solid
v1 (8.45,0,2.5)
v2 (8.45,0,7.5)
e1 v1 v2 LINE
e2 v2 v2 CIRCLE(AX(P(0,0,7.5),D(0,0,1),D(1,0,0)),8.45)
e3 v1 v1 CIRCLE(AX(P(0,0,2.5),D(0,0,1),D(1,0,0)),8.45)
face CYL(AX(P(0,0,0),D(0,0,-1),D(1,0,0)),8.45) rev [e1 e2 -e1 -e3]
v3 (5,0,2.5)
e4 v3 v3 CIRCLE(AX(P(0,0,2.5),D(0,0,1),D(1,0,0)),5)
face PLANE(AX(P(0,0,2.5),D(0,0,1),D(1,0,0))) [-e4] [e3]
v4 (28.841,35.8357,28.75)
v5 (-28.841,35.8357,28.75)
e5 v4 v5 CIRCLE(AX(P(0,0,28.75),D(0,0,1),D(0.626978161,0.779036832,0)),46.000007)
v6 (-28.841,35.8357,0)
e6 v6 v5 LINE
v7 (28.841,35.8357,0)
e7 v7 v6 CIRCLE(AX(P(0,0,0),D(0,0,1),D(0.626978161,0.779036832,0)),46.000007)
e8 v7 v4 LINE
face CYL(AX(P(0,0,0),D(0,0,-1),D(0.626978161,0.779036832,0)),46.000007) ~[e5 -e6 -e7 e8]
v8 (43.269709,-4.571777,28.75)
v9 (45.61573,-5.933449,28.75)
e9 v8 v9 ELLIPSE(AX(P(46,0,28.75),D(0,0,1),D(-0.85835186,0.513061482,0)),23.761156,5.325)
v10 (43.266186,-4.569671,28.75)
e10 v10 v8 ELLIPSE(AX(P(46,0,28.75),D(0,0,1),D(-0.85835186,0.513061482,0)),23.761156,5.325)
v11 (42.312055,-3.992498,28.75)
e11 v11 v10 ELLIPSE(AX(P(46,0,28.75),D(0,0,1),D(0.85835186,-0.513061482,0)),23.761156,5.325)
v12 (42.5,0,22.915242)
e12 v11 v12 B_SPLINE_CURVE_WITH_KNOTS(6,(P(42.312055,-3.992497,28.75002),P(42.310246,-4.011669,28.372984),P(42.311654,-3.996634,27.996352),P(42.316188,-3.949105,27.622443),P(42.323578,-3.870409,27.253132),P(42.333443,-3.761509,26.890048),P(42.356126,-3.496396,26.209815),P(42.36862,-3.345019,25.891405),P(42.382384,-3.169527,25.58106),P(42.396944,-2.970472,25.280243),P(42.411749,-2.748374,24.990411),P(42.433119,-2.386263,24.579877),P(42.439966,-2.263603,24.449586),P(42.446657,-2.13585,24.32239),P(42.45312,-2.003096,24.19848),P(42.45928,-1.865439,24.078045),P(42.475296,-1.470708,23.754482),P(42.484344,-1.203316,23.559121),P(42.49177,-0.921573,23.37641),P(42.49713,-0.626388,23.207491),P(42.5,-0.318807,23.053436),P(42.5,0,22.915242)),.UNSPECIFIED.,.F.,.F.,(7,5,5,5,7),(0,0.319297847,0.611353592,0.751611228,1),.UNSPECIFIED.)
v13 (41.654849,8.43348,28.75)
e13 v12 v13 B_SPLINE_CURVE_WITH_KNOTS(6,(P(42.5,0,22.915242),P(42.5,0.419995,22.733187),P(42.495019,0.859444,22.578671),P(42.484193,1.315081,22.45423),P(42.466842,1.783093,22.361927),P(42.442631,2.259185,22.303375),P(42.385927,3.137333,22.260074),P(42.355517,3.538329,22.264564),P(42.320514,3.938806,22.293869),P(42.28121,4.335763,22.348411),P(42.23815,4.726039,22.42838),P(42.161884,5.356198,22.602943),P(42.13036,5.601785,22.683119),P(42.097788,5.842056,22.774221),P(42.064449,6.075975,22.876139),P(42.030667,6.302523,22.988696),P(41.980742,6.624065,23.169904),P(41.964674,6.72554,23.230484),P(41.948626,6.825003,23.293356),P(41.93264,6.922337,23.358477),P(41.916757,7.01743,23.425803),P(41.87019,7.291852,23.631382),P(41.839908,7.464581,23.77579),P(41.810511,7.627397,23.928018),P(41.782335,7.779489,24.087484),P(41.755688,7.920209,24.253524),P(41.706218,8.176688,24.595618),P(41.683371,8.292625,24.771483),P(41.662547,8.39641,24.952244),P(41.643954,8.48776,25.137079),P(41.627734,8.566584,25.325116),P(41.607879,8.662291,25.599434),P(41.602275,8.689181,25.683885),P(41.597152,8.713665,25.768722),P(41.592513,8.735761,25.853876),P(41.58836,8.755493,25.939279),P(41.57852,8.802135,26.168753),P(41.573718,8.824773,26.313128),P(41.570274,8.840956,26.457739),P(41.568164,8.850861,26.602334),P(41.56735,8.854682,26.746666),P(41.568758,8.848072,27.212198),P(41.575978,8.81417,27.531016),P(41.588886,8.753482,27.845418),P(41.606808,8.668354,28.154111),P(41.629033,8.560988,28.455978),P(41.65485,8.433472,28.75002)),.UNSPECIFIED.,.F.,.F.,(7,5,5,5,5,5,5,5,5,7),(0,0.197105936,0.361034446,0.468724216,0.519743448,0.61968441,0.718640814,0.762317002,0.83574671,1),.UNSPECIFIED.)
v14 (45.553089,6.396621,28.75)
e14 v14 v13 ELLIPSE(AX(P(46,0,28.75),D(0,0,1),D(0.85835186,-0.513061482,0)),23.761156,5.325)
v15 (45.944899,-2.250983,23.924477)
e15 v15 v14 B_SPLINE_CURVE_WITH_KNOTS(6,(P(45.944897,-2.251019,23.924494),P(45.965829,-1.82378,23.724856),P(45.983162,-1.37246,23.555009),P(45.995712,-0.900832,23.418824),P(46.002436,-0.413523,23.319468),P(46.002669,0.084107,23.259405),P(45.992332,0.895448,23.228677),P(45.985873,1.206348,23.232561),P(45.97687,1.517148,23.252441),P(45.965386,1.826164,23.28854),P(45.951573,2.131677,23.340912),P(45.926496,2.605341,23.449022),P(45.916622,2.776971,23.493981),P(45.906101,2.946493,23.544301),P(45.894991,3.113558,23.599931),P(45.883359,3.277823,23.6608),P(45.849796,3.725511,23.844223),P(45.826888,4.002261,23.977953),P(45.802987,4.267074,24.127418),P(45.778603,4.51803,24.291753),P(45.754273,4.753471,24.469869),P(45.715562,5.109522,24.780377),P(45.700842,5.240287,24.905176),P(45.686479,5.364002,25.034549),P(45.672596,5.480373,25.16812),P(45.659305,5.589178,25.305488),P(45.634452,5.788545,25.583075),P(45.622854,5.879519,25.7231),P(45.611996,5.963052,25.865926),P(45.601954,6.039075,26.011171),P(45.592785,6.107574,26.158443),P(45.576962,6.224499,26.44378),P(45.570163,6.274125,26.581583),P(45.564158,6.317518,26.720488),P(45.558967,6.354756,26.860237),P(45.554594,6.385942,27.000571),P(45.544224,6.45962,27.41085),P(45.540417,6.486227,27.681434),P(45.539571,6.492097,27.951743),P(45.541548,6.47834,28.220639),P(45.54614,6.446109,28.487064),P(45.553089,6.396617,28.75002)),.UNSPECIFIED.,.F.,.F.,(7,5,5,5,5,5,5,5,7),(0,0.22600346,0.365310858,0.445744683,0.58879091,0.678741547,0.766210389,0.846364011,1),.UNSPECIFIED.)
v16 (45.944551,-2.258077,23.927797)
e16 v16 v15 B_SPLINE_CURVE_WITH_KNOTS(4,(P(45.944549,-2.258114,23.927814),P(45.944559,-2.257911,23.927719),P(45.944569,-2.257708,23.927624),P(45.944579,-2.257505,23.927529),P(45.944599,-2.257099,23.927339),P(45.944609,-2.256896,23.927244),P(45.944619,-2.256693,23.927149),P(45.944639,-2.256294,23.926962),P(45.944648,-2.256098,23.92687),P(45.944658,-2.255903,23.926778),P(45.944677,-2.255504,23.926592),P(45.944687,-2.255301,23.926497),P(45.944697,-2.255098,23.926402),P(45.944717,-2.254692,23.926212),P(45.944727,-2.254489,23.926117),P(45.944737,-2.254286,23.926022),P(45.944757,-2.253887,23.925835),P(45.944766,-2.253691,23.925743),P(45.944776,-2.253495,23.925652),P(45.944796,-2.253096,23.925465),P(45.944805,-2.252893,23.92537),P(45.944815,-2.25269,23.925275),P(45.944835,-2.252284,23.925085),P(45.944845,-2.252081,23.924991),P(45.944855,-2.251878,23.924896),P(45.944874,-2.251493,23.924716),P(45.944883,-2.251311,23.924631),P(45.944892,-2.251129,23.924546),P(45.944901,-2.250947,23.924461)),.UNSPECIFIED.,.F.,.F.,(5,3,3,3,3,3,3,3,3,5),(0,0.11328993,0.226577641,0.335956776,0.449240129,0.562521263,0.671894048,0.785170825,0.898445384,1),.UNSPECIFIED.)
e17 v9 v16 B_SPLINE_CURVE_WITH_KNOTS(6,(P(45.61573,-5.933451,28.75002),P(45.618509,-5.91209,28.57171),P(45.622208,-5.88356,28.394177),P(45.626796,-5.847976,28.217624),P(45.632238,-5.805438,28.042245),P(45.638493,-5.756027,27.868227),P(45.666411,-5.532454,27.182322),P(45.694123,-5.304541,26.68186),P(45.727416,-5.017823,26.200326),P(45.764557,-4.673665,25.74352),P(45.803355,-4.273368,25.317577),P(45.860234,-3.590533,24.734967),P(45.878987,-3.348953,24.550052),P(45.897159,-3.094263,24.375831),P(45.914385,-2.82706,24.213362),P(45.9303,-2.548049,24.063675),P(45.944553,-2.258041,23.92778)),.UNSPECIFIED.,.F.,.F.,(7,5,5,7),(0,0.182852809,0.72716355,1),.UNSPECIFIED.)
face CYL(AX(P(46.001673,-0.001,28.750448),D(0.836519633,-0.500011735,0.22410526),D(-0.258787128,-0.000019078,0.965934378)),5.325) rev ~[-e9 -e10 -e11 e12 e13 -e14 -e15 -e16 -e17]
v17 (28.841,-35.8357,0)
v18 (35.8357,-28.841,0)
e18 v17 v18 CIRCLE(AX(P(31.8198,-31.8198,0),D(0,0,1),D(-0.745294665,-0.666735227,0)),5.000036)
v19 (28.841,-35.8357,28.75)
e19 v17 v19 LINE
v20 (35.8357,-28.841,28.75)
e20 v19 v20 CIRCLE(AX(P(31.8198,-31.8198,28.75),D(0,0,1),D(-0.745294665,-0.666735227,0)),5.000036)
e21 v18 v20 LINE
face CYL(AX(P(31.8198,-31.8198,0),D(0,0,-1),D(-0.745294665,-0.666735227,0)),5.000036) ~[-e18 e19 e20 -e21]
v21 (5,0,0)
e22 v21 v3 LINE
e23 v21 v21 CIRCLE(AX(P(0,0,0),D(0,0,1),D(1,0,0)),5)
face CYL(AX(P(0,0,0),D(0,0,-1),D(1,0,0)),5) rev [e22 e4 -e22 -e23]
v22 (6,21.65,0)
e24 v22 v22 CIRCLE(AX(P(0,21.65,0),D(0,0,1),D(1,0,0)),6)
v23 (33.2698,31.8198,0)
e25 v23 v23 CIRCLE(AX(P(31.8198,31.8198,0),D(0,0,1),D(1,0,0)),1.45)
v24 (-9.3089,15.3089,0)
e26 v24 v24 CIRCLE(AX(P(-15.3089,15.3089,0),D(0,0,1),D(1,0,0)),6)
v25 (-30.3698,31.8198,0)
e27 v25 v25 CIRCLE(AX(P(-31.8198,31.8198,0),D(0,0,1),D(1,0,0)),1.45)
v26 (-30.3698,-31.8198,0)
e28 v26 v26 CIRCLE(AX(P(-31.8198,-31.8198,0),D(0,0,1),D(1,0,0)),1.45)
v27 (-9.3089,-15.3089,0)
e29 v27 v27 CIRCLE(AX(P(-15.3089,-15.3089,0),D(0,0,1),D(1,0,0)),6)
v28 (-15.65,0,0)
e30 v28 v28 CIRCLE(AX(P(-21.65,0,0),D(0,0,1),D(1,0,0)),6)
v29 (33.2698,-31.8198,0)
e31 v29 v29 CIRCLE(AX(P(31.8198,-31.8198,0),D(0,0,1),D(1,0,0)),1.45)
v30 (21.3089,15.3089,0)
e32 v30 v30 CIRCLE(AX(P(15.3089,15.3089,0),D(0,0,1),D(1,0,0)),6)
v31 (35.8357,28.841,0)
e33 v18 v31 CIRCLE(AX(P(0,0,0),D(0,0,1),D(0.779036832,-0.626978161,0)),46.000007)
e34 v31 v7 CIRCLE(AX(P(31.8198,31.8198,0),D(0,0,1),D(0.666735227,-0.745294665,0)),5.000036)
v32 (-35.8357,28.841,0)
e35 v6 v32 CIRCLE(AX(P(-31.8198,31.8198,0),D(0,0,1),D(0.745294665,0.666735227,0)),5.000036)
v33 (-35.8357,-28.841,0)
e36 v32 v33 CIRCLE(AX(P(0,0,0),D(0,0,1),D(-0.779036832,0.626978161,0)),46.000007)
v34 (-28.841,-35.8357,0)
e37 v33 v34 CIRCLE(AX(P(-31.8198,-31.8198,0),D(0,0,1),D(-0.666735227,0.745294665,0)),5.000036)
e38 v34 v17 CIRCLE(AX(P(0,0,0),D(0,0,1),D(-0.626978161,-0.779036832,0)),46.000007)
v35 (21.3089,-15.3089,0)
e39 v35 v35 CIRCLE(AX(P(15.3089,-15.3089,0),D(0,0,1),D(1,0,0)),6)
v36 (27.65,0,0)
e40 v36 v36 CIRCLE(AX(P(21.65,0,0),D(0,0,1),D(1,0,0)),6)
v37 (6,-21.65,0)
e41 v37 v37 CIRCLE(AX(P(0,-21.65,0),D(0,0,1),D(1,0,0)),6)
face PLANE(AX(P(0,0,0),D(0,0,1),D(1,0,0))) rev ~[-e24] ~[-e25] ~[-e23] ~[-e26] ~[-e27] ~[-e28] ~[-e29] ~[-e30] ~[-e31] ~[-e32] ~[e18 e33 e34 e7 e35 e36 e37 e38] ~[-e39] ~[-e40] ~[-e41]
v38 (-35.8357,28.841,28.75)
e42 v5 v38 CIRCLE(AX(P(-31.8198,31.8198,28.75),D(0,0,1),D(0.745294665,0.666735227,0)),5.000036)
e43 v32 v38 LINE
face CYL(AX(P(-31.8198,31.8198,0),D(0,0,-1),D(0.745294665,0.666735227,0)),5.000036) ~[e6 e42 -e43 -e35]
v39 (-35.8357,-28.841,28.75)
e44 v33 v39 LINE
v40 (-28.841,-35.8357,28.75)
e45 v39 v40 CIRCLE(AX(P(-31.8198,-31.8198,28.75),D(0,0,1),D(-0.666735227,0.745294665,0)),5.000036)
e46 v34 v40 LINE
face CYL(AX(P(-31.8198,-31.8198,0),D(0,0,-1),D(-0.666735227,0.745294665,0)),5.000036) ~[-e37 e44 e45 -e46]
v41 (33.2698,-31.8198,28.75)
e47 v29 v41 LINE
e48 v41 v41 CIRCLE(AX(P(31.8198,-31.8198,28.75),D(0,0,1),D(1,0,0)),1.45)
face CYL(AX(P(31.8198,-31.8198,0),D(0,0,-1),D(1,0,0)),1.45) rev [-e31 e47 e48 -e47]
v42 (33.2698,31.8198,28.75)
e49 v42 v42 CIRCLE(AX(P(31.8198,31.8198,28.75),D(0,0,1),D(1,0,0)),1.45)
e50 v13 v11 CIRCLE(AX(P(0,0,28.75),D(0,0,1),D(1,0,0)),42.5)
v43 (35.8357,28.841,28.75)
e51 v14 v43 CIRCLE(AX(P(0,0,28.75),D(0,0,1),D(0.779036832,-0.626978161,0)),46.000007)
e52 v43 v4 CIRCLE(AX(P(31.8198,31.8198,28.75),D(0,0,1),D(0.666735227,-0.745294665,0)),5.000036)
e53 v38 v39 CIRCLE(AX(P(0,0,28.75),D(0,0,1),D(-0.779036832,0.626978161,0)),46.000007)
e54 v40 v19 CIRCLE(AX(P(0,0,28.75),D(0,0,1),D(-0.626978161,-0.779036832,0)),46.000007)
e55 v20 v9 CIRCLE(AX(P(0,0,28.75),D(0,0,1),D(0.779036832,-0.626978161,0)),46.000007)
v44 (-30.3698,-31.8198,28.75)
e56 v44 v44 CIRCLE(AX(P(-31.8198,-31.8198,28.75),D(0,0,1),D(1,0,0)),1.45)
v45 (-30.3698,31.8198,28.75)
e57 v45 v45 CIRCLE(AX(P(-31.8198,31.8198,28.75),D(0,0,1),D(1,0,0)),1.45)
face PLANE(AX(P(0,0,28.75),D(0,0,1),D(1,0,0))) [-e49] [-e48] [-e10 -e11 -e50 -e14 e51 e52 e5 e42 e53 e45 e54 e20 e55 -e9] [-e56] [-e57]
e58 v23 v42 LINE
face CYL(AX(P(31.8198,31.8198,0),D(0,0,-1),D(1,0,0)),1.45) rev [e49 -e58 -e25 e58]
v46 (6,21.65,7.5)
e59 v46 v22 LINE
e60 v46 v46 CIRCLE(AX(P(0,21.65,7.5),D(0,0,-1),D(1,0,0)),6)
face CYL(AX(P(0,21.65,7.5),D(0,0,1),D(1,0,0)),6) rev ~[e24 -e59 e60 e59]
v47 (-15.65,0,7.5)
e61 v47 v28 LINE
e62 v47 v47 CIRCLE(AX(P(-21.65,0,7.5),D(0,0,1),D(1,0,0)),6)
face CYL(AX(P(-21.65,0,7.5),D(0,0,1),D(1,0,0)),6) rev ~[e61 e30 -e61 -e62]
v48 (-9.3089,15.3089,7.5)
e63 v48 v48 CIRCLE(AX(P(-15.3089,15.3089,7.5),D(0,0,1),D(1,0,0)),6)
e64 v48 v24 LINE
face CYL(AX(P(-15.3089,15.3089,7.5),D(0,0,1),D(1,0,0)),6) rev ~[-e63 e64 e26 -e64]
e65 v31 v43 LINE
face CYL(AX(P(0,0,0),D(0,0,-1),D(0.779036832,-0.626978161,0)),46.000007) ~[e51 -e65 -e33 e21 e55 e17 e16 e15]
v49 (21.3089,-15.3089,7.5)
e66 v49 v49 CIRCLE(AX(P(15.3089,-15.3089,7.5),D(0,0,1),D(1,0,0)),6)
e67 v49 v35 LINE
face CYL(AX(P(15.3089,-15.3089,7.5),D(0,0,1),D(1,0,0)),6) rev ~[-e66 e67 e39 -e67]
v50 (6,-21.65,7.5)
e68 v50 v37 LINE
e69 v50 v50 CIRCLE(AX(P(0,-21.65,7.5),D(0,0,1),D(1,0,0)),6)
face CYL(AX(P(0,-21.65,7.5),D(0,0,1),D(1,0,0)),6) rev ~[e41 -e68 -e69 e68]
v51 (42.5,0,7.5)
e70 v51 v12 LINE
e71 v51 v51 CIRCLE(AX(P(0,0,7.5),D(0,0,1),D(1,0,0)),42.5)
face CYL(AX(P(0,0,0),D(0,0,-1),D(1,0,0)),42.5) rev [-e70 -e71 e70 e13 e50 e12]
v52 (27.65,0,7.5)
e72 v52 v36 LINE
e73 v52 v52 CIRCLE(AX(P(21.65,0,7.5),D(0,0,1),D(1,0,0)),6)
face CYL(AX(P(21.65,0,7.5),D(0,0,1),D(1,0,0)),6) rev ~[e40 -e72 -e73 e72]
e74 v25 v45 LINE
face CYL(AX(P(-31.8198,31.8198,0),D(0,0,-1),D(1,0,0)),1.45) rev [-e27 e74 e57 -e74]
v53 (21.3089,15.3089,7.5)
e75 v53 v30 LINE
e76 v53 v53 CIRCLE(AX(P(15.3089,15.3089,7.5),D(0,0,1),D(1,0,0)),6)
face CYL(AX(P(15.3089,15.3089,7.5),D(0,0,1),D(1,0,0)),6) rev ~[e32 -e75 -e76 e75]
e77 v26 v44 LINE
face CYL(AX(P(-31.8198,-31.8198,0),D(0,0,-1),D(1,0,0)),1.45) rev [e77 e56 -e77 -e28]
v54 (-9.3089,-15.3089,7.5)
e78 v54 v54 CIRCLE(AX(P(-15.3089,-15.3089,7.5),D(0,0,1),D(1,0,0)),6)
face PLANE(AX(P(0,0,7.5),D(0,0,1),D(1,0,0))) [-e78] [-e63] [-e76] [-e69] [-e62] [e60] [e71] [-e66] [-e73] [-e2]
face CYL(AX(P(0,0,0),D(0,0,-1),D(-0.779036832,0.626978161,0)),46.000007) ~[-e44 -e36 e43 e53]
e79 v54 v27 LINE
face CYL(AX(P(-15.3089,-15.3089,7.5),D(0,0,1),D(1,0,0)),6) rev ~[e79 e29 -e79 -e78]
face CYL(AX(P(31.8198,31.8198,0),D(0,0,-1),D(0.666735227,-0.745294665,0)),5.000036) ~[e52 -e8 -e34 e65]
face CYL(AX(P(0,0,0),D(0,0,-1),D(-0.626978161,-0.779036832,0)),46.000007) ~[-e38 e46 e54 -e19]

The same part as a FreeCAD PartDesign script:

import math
import FreeCAD as App
import Part
import Sketcher
from FreeCAD import Vector

doc = App.newDocument("Part")
body = doc.addObject("PartDesign::Body", "Body")

# Sketch on XY plane
sketch1 = body.newObject("Sketcher::SketchObject", "Sketch")
sketch1.AttachmentSupport = (doc.getObject("XY_Plane"), [""])
sketch1.MapMode = "FlatFace"
sketch1.addGeometry([
    Part.Circle(Vector(0, 0, 0), Vector(0, 0, 1), 8.45),
    Part.Circle(Vector(0, 0, 0), Vector(0, 0, 1), 5),
], False)
sketch1.addConstraint([
    Sketcher.Constraint("Coincident", 0, 3, -1, 1),
    Sketcher.Constraint("Coincident", 1, 3, -1, 1),
    Sketcher.Constraint("Diameter", 1, 10.0),
    Sketcher.Constraint("Diameter", 0, 16.9),
])
pad1 = body.newObject("PartDesign::Pad", "Pad")
pad1.Profile = sketch1
pad1.Length = 2.5

# Sketch on XY plane
sketch2 = body.newObject("Sketcher::SketchObject", "Sketch001")
sketch2.AttachmentSupport = (doc.getObject("XY_Plane"), [""])
sketch2.MapMode = "FlatFace"
sketch2.addGeometry([
    Part.Circle(Vector(0, 0, 0), Vector(0, 0, 1), 42.5),
    Part.Circle(Vector(0, 0, 0), Vector(0, 0, 1), 8.45),
], False)
sketch2.addConstraint([
    Sketcher.Constraint("Coincident", 0, 3, -1, 1),
    Sketcher.Constraint("Coincident", 1, 3, -1, 1),
    Sketcher.Constraint("Diameter", 0, 85.0),
    Sketcher.Constraint("Diameter", 1, 16.9),
])
pad2 = body.newObject("PartDesign::Pad", "Pad001")
pad2.Profile = sketch2
pad2.Length = 7.5

# Sketch on XY plane
sketch3 = body.newObject("Sketcher::SketchObject", "Sketch002")
sketch3.AttachmentSupport = (doc.getObject("XY_Plane"), [""])
sketch3.MapMode = "FlatFace"
sketch3.addGeometry([
    Part.ArcOfCircle(Part.Circle(Vector(0, 0, 0), Vector(0, 0, 1), 46.000007), math.radians(51.172473), math.radians(128.827527)),  # 0
    Part.ArcOfCircle(Part.Circle(Vector(-31.8198, 31.8198, 0), Vector(0, 0, 1), 5.000036), math.radians(53.433767), math.radians(216.566233)),  # 1
    Part.ArcOfCircle(Part.Circle(Vector(0, 0, 0), Vector(0, 0, 1), 46.000007), math.radians(141.172473), math.radians(218.827527)),  # 2
    Part.ArcOfCircle(Part.Circle(Vector(-31.8198, -31.8198, 0), Vector(0, 0, 1), 5.000036), math.radians(143.433767), math.radians(306.566233)),  # 3
    Part.ArcOfCircle(Part.Circle(Vector(0, 0, 0), Vector(0, 0, 1), 46.000007), math.radians(-128.827527), math.radians(-51.172473)),  # 4
    Part.ArcOfCircle(Part.Circle(Vector(31.8198, -31.8198, 0), Vector(0, 0, 1), 5.000036), math.radians(-126.566233), math.radians(36.566233)),  # 5
    Part.ArcOfCircle(Part.Circle(Vector(0, 0, 0), Vector(0, 0, 1), 46.000007), math.radians(-38.827527), math.radians(38.827527)),  # 6
    Part.ArcOfCircle(Part.Circle(Vector(31.8198, 31.8198, 0), Vector(0, 0, 1), 5.000036), math.radians(-36.566233), math.radians(126.566233)),  # 7
    Part.Circle(Vector(-31.8198, -31.8198, 0), Vector(0, 0, 1), 1.45),  # 8
    Part.Circle(Vector(31.8198, -31.8198, 0), Vector(0, 0, 1), 1.45),  # 9
    Part.Circle(Vector(-31.8198, 31.8198, 0), Vector(0, 0, 1), 1.45),  # 10
    Part.Circle(Vector(0, 0, 0), Vector(0, 0, 1), 42.5),  # 11
    Part.Circle(Vector(31.8198, 31.8198, 0), Vector(0, 0, 1), 1.45),  # 12
], False)
sketch3.addConstraint([
    Sketcher.Constraint("Coincident", 0, 2, 1, 1),
    Sketcher.Constraint("Coincident", 1, 2, 2, 1),
    Sketcher.Constraint("Coincident", 2, 2, 3, 1),
    Sketcher.Constraint("Coincident", 3, 2, 4, 1),
    Sketcher.Constraint("Coincident", 4, 2, 5, 1),
    Sketcher.Constraint("Coincident", 5, 2, 6, 1),
    Sketcher.Constraint("Coincident", 6, 2, 7, 1),
    Sketcher.Constraint("Coincident", 7, 2, 0, 1),
    Sketcher.Constraint("Coincident", 0, 3, -1, 1),
    Sketcher.Constraint("Coincident", 2, 3, -1, 1),
    Sketcher.Constraint("Coincident", 4, 3, -1, 1),
    Sketcher.Constraint("Coincident", 6, 3, -1, 1),
    Sketcher.Constraint("Coincident", 11, 3, -1, 1),
    Sketcher.Constraint("Coincident", 8, 3, 3, 3),
    Sketcher.Constraint("Coincident", 9, 3, 5, 3),
    Sketcher.Constraint("Coincident", 10, 3, 1, 3),
    Sketcher.Constraint("Coincident", 12, 3, 7, 3),
    Sketcher.Constraint("Equal", 0, 2),
    Sketcher.Constraint("Equal", 1, 3),
    Sketcher.Constraint("Equal", 2, 4),
    Sketcher.Constraint("Equal", 3, 5),
    Sketcher.Constraint("Equal", 4, 6),
    Sketcher.Constraint("Equal", 5, 7),
    Sketcher.Constraint("Equal", 8, 9),
    Sketcher.Constraint("Equal", 9, 10),
    Sketcher.Constraint("Equal", 10, 12),
    Sketcher.Constraint("Symmetric", 1, 3, 5, 3, -1, 1),
    Sketcher.Constraint("Symmetric", 3, 3, 7, 3, -1, 1),
    Sketcher.Constraint("Symmetric", 3, 3, 5, 3, -2),
    Sketcher.Constraint("Diameter", 11, 85.0),
    Sketcher.Constraint("Radius", 0, 46.0),
    Sketcher.Constraint("Radius", 1, 5.0),
    Sketcher.Constraint("Diameter", 8, 2.9),
    Sketcher.Constraint("DistanceX", 0, 2, -1, 1, 28.841),
    Sketcher.Constraint("DistanceY", -1, 1, 1, 2, 28.841),
])
pad3 = body.newObject("PartDesign::Pad", "Pad002")
pad3.Profile = sketch3
pad3.Length = 28.75

# Sketch on an angled plane
sketch4 = body.newObject("Sketcher::SketchObject", "Sketch003")
sketch4.Placement = App.Placement(Vector(46, 0, 28.75), App.Rotation(Vector(-0.258787128, -0.000019078, 0.965934378), Vector(-0.482974249, -0.866018628, -0.12941256), Vector(0.836519633, -0.500011735, 0.22410526), "ZXY"))
sketch4.addGeometry(Part.Circle(Vector(0, 0, 0), Vector(0, 0, 1), 5.325), False)
sketch4.addConstraint([
    Sketcher.Constraint("Coincident", 0, 3, -1, 1),
    Sketcher.Constraint("Diameter", 0, 10.65),
])
pocket1 = body.newObject("PartDesign::Pocket", "Pocket")
pocket1.Profile = sketch4
pocket1.Length = 30
pocket1.Midplane = True

# Sketch on XY plane
sketch5 = body.newObject("Sketcher::SketchObject", "Sketch004")
sketch5.AttachmentSupport = (doc.getObject("XY_Plane"), [""])
sketch5.MapMode = "FlatFace"
sketch5.AttachmentOffset = App.Placement(Vector(0, 0, 7.5), App.Rotation())
sketch5.addGeometry([
    Part.Circle(Vector(0, 21.65, 0), Vector(0, 0, 1), 6),  # 0
    Part.Circle(Vector(-15.3089, 15.3089, 0), Vector(0, 0, 1), 6),  # 1
    Part.Circle(Vector(-21.65, 0, 0), Vector(0, 0, 1), 6),  # 2
    Part.Circle(Vector(-15.3089, -15.3089, 0), Vector(0, 0, 1), 6),  # 3
    Part.Circle(Vector(0, -21.65, 0), Vector(0, 0, 1), 6),  # 4
    Part.Circle(Vector(15.3089, -15.3089, 0), Vector(0, 0, 1), 6),  # 5
    Part.Circle(Vector(21.65, 0, 0), Vector(0, 0, 1), 6),  # 6
    Part.Circle(Vector(15.3089, 15.3089, 0), Vector(0, 0, 1), 6),  # 7
], False)
sketch5.addConstraint([
    Sketcher.Constraint("Equal", 0, 1),
    Sketcher.Constraint("Equal", 1, 2),
    Sketcher.Constraint("Equal", 2, 3),
    Sketcher.Constraint("Equal", 3, 4),
    Sketcher.Constraint("Equal", 4, 5),
    Sketcher.Constraint("Equal", 5, 6),
    Sketcher.Constraint("Equal", 6, 7),
    Sketcher.Constraint("Symmetric", 0, 3, 4, 3, -1, 1),
    Sketcher.Constraint("Symmetric", 1, 3, 5, 3, -1, 1),
    Sketcher.Constraint("Symmetric", 2, 3, 6, 3, -1, 1),
    Sketcher.Constraint("Symmetric", 3, 3, 7, 3, -1, 1),
    Sketcher.Constraint("Symmetric", 3, 3, 5, 3, -2),
    Sketcher.Constraint("PointOnObject", 0, 3, -2),
    Sketcher.Constraint("PointOnObject", 2, 3, -1),
    Sketcher.Constraint("Diameter", 0, 12.0),
    Sketcher.Constraint("DistanceY", -1, 1, 0, 3, 21.65),
    Sketcher.Constraint("DistanceX", 2, 3, -1, 1, 21.65),
    Sketcher.Constraint("DistanceX", 1, 3, -1, 1, 15.309),
    Sketcher.Constraint("DistanceY", -1, 1, 1, 3, 15.309),
])
pocket2 = body.newObject("PartDesign::Pocket", "Pocket001")
pocket2.Profile = sketch5
pocket2.Type = "ThroughAll"

doc.recompute()
